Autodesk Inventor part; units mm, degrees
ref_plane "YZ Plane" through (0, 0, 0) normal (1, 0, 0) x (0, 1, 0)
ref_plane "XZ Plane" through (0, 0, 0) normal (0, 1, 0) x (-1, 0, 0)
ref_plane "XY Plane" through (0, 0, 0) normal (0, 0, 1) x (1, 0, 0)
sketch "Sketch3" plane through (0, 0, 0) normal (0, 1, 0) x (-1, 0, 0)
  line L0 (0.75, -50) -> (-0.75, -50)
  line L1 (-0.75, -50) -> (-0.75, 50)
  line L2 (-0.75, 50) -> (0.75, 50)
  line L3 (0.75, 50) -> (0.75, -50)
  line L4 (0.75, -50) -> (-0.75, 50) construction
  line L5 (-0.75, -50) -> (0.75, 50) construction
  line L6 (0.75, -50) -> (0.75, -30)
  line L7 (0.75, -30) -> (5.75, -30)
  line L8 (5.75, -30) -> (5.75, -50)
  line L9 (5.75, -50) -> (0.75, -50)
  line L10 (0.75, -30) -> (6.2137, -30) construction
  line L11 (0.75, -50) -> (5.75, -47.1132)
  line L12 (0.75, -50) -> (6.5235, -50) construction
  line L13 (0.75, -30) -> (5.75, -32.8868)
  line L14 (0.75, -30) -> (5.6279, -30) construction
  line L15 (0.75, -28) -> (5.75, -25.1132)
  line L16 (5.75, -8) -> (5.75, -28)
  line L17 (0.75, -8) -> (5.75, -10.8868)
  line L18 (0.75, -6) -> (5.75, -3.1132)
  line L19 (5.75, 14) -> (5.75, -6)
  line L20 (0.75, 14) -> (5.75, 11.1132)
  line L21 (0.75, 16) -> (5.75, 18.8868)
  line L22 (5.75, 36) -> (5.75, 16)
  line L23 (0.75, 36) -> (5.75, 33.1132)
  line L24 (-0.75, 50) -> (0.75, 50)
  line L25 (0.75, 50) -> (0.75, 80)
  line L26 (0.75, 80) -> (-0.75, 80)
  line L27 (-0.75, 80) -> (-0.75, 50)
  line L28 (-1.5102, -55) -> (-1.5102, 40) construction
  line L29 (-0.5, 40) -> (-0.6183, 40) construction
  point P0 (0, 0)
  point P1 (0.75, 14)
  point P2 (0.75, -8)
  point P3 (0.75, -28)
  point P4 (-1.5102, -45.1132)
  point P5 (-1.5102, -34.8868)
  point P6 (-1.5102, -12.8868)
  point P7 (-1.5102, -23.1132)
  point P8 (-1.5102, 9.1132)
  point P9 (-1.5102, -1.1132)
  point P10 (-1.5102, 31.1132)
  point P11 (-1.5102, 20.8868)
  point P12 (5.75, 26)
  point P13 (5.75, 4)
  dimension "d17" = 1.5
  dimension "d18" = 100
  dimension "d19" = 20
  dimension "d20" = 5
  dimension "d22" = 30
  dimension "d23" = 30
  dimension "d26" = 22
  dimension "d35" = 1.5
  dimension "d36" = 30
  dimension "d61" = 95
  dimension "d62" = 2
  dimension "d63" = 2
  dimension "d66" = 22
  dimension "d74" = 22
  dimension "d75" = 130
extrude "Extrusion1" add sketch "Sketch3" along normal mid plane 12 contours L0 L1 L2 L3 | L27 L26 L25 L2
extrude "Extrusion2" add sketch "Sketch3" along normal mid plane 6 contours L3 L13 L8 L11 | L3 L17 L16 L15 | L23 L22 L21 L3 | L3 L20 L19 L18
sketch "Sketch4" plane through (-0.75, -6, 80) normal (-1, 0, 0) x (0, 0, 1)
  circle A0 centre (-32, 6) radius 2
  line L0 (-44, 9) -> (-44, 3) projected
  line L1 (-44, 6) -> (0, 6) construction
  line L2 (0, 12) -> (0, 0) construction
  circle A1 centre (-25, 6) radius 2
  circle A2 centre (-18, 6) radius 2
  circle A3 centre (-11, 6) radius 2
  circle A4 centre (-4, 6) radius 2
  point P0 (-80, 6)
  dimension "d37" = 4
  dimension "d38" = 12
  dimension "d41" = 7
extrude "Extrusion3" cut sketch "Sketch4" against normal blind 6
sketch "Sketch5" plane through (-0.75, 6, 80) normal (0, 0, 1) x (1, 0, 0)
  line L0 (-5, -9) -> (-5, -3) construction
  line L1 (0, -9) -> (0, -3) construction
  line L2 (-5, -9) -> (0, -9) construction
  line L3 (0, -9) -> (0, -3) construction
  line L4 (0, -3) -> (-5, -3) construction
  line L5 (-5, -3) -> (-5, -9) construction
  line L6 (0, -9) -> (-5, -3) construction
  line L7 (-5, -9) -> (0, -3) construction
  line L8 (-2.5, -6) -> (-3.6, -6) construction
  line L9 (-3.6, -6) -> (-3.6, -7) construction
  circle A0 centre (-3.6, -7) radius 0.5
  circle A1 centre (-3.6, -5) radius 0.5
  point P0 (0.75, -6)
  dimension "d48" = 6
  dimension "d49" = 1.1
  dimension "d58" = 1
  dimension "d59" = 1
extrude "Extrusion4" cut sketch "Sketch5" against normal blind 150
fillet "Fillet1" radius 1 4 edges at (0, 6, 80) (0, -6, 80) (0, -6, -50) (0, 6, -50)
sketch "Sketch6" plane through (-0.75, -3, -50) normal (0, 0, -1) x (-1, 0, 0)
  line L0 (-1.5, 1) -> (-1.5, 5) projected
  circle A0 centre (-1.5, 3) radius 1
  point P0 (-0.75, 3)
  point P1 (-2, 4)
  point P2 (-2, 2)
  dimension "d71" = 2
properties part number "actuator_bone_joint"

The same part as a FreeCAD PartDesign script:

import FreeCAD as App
import Part
import Sketcher
from FreeCAD import Vector
Q = App.Units.Quantity


def edges_at(feature, points):
    """Names of the edges that pass closest to the given points."""
    edges = feature.Shape.Edges
    near = lambda p: min(range(len(edges)), key=lambda i: edges[i].distToShape(Part.Vertex(*p))[0])
    return sorted({f"Edge{near(p) + 1}" for p in points})


def add_polygon(sketch, points):
    """Adds a closed chain of lines whose ends are joined by coincident constraints."""
    first, n = sketch.GeometryCount, len(points)
    for a, b in zip(points, points[1:] + points[:1]):
        sketch.addGeometry(Part.LineSegment(App.Vector(*a, 0), App.Vector(*b, 0)), False)
    for i in range(n):
        sketch.addConstraint(Sketcher.Constraint("Coincident", first + i, 2, first + (i + 1) % n, 1))

doc = App.newDocument("Part")
body = doc.addObject("PartDesign::Body", "Body")

# Sketch on XZ plane
sketch1 = body.newObject("Sketcher::SketchObject", "Sketch")
sketch1.AttachmentSupport = (doc.getObject("XZ_Plane"), [""])
sketch1.MapMode = "FlatFace"
add_polygon(sketch1, [(0.8, -50), (-0.8, -50), (-0.8, 80), (0.8, 80)])  # lines 0-3
sketch1.addConstraint(Sketcher.Constraint("Horizontal", 0))
sketch1.addConstraint(Sketcher.Constraint("Vertical", 1))
sketch1.addConstraint(Sketcher.Constraint("Horizontal", 2))
sketch1.addConstraint(Sketcher.Constraint("Vertical", 3))
sketch1.addConstraint(Sketcher.Constraint("DistanceY", 1, 1, 1, 2, Q("130 mm")))
sketch1.addConstraint(Sketcher.Constraint("DistanceX", 0, 2, 0, 1, Q("1.5 mm")))
sketch1.addConstraint(Sketcher.Constraint("DistanceY", 0, 2, -1, 1, Q("50 mm")))
sketch1.addConstraint(Sketcher.Constraint("DistanceX", 0, 2, -1, 1, Q("0.75 mm")))
pad1 = body.newObject("PartDesign::Pad", "Pad")
pad1.Profile = sketch1
pad1.Length = 12
pad1.Midplane = True

# Sketch on XZ plane
sketch2 = body.newObject("Sketcher::SketchObject", "Sketch001")
sketch2.AttachmentSupport = (doc.getObject("XZ_Plane"), [""])
sketch2.MapMode = "FlatFace"
add_polygon(sketch2, [(-1, -30), (-1, -50), (-6, -47), (-6, -33)])  # lines 0-3
add_polygon(sketch2, [(-1, -8), (-1, -28), (-6, -25), (-6, -11)])  # lines 4-7
add_polygon(sketch2, [(-6, 33), (-1, 36), (-1, 16), (-6, 19)])  # lines 8-11
add_polygon(sketch2, [(-1, 14), (-1, -6), (-6, -3), (-6, 11)])  # lines 12-15
sketch2.addConstraint(Sketcher.Constraint("Vertical", 0))
sketch2.addConstraint(Sketcher.Constraint("Vertical", 2))
sketch2.addConstraint(Sketcher.Constraint("Vertical", 4))
sketch2.addConstraint(Sketcher.Constraint("Vertical", 6))
sketch2.addConstraint(Sketcher.Constraint("Vertical", 9))
sketch2.addConstraint(Sketcher.Constraint("Vertical", 11))
sketch2.addConstraint(Sketcher.Constraint("Vertical", 12))
sketch2.addConstraint(Sketcher.Constraint("Vertical", 14))
sketch2.addConstraint(Sketcher.Constraint("Parallel", 1, 5))
sketch2.addConstraint(Sketcher.Constraint("Parallel", 3, 7))
sketch2.addConstraint(Sketcher.Constraint("Parallel", 7, 8))
sketch2.addConstraint(Sketcher.Constraint("Parallel", 5, 10))
sketch2.addConstraint(Sketcher.Constraint("Parallel", 10, 13))
sketch2.addConstraint(Sketcher.Constraint("Parallel", 8, 15))
sketch2.addConstraint(Sketcher.Constraint("Vertical", 3, 2, 4, 2))
sketch2.addConstraint(Sketcher.Constraint("Vertical", 2, 2, 5, 2))
sketch2.addConstraint(Sketcher.Constraint("Vertical", 7, 2, 8, 2))
sketch2.addConstraint(Sketcher.Constraint("Vertical", 6, 2, 10, 2))
sketch2.addConstraint(Sketcher.Constraint("Vertical", 9, 2, 12, 2))
sketch2.addConstraint(Sketcher.Constraint("Vertical", 11, 2, 13, 2))
sketch2.addConstraint(Sketcher.Constraint("Equal", 0, 4))
sketch2.addConstraint(Sketcher.Constraint("Equal", 4, 9))
sketch2.addConstraint(Sketcher.Constraint("Equal", 9, 12))
sketch2.addConstraint(Sketcher.Constraint("Equal", 1, 3))
sketch2.addConstraint(Sketcher.Constraint("DistanceY", 0, 2, 0, 1, Q("20 mm")))
sketch2.addConstraint(Sketcher.Constraint("Angle", 3, Q("30.0004 deg")))
sketch2.addConstraint(Sketcher.Constraint("DistanceY", 3, 2, -1, 1, Q("30 mm")))
sketch2.addConstraint(Sketcher.Constraint("DistanceX", 1, 2, 0, 2, Q("5 mm")))
sketch2.addConstraint(Sketcher.Constraint("DistanceY", 3, 2, 4, 2, Q("2 mm")))
sketch2.addConstraint(Sketcher.Constraint("DistanceY", 7, 2, 12, 2, Q("2 mm")))
sketch2.addConstraint(Sketcher.Constraint("DistanceY", 12, 2, 9, 2, Q("22 mm")))
sketch2.addConstraint(Sketcher.Constraint("DistanceX", 0, 2, -1, 1, Q("0.75 mm")))
pad2 = body.newObject("PartDesign::Pad", "Pad001")
pad2.Profile = sketch2
pad2.Length = 6
pad2.Midplane = True

# Sketch on YZ plane
sketch3 = body.newObject("Sketcher::SketchObject", "Sketch002")
sketch3.AttachmentSupport = (doc.getObject("YZ_Plane"), [""])
sketch3.MapMode = "FlatFace"
sketch3.AttachmentOffset = App.Placement(Vector(0, 0, -0.75), App.Rotation())
sketch3.addGeometry(Part.Circle(Vector(0, 48, 0), Vector(0, 0, 1), 2), False)
sketch3.addGeometry(Part.Circle(Vector(0, 55, 0), Vector(0, 0, 1), 2), False)
sketch3.addGeometry(Part.Circle(Vector(0, 62, 0), Vector(0, 0, 1), 2), False)
sketch3.addGeometry(Part.Circle(Vector(0, 69, 0), Vector(0, 0, 1), 2), False)
sketch3.addGeometry(Part.Circle(Vector(0, 76, 0), Vector(0, 0, 1), 2), False)
sketch3.addConstraint(Sketcher.Constraint("Equal", 0, 1))
sketch3.addConstraint(Sketcher.Constraint("Equal", 1, 2))
sketch3.addConstraint(Sketcher.Constraint("Equal", 2, 3))
sketch3.addConstraint(Sketcher.Constraint("Equal", 3, 4))
sketch3.addConstraint(Sketcher.Constraint("PointOnObject", 0, 3, -2))
sketch3.addConstraint(Sketcher.Constraint("PointOnObject", 1, 3, -2))
sketch3.addConstraint(Sketcher.Constraint("PointOnObject", 2, 3, -2))
sketch3.addConstraint(Sketcher.Constraint("PointOnObject", 3, 3, -2))
sketch3.addConstraint(Sketcher.Constraint("PointOnObject", 4, 3, -2))
sketch3.addConstraint(Sketcher.Constraint("Diameter", 0, Q("4 mm")))
sketch3.addConstraint(Sketcher.Constraint("DistanceY", 0, 3, 1, 3, Q("7 mm")))
sketch3.addConstraint(Sketcher.Constraint("DistanceY", 1, 3, 2, 3, Q("7 mm")))
sketch3.addConstraint(Sketcher.Constraint("DistanceY", 2, 3, 3, 3, Q("7 mm")))
sketch3.addConstraint(Sketcher.Constraint("DistanceY", 3, 3, 4, 3, Q("7 mm")))
sketch3.addConstraint(Sketcher.Constraint("DistanceY", -1, 1, 0, 3, Q("48 mm")))
pocket1 = body.newObject("PartDesign::Pocket", "Pocket")
pocket1.Profile = sketch3
pocket1.Length = 6
pocket1.Reversed = True

# Sketch on XY plane
sketch4 = body.newObject("Sketcher::SketchObject", "Sketch003")
sketch4.AttachmentSupport = (doc.getObject("XY_Plane"), [""])
sketch4.MapMode = "FlatFace"
sketch4.AttachmentOffset = App.Placement(Vector(0, 0, 80), App.Rotation())
sketch4.addGeometry(Part.Circle(Vector(-4.3, -1, 0), Vector(0, 0, 1), 0.5), False)
sketch4.addGeometry(Part.Circle(Vector(-4.3, 1, 0), Vector(0, 0, 1), 0.5), False)
sketch4.addConstraint(Sketcher.Constraint("Equal", 0, 1))
sketch4.addConstraint(Sketcher.Constraint("Symmetric", 0, 3, 1, 3, -1))
sketch4.addConstraint(Sketcher.Constraint("Diameter", 0, Q("1 mm")))
sketch4.addConstraint(Sketcher.Constraint("DistanceY", 0, 3, -1, 1, Q("1 mm")))
sketch4.addConstraint(Sketcher.Constraint("DistanceX", 0, 3, -1, 1, Q("4.35 mm")))
pocket2 = body.newObject("PartDesign::Pocket", "Pocket001")
pocket2.Profile = sketch4
pocket2.Length = 150
doc.recompute()

fillet = body.newObject("PartDesign::Fillet", "Fillet")
fillet.Base = (pocket2, edges_at(pocket2, [
    (0, 6, 80),
    (0, -6, 80),
    (0, -6, -50),
    (0, 6, -50),
]))
fillet.Radius = 1

doc.recompute()
